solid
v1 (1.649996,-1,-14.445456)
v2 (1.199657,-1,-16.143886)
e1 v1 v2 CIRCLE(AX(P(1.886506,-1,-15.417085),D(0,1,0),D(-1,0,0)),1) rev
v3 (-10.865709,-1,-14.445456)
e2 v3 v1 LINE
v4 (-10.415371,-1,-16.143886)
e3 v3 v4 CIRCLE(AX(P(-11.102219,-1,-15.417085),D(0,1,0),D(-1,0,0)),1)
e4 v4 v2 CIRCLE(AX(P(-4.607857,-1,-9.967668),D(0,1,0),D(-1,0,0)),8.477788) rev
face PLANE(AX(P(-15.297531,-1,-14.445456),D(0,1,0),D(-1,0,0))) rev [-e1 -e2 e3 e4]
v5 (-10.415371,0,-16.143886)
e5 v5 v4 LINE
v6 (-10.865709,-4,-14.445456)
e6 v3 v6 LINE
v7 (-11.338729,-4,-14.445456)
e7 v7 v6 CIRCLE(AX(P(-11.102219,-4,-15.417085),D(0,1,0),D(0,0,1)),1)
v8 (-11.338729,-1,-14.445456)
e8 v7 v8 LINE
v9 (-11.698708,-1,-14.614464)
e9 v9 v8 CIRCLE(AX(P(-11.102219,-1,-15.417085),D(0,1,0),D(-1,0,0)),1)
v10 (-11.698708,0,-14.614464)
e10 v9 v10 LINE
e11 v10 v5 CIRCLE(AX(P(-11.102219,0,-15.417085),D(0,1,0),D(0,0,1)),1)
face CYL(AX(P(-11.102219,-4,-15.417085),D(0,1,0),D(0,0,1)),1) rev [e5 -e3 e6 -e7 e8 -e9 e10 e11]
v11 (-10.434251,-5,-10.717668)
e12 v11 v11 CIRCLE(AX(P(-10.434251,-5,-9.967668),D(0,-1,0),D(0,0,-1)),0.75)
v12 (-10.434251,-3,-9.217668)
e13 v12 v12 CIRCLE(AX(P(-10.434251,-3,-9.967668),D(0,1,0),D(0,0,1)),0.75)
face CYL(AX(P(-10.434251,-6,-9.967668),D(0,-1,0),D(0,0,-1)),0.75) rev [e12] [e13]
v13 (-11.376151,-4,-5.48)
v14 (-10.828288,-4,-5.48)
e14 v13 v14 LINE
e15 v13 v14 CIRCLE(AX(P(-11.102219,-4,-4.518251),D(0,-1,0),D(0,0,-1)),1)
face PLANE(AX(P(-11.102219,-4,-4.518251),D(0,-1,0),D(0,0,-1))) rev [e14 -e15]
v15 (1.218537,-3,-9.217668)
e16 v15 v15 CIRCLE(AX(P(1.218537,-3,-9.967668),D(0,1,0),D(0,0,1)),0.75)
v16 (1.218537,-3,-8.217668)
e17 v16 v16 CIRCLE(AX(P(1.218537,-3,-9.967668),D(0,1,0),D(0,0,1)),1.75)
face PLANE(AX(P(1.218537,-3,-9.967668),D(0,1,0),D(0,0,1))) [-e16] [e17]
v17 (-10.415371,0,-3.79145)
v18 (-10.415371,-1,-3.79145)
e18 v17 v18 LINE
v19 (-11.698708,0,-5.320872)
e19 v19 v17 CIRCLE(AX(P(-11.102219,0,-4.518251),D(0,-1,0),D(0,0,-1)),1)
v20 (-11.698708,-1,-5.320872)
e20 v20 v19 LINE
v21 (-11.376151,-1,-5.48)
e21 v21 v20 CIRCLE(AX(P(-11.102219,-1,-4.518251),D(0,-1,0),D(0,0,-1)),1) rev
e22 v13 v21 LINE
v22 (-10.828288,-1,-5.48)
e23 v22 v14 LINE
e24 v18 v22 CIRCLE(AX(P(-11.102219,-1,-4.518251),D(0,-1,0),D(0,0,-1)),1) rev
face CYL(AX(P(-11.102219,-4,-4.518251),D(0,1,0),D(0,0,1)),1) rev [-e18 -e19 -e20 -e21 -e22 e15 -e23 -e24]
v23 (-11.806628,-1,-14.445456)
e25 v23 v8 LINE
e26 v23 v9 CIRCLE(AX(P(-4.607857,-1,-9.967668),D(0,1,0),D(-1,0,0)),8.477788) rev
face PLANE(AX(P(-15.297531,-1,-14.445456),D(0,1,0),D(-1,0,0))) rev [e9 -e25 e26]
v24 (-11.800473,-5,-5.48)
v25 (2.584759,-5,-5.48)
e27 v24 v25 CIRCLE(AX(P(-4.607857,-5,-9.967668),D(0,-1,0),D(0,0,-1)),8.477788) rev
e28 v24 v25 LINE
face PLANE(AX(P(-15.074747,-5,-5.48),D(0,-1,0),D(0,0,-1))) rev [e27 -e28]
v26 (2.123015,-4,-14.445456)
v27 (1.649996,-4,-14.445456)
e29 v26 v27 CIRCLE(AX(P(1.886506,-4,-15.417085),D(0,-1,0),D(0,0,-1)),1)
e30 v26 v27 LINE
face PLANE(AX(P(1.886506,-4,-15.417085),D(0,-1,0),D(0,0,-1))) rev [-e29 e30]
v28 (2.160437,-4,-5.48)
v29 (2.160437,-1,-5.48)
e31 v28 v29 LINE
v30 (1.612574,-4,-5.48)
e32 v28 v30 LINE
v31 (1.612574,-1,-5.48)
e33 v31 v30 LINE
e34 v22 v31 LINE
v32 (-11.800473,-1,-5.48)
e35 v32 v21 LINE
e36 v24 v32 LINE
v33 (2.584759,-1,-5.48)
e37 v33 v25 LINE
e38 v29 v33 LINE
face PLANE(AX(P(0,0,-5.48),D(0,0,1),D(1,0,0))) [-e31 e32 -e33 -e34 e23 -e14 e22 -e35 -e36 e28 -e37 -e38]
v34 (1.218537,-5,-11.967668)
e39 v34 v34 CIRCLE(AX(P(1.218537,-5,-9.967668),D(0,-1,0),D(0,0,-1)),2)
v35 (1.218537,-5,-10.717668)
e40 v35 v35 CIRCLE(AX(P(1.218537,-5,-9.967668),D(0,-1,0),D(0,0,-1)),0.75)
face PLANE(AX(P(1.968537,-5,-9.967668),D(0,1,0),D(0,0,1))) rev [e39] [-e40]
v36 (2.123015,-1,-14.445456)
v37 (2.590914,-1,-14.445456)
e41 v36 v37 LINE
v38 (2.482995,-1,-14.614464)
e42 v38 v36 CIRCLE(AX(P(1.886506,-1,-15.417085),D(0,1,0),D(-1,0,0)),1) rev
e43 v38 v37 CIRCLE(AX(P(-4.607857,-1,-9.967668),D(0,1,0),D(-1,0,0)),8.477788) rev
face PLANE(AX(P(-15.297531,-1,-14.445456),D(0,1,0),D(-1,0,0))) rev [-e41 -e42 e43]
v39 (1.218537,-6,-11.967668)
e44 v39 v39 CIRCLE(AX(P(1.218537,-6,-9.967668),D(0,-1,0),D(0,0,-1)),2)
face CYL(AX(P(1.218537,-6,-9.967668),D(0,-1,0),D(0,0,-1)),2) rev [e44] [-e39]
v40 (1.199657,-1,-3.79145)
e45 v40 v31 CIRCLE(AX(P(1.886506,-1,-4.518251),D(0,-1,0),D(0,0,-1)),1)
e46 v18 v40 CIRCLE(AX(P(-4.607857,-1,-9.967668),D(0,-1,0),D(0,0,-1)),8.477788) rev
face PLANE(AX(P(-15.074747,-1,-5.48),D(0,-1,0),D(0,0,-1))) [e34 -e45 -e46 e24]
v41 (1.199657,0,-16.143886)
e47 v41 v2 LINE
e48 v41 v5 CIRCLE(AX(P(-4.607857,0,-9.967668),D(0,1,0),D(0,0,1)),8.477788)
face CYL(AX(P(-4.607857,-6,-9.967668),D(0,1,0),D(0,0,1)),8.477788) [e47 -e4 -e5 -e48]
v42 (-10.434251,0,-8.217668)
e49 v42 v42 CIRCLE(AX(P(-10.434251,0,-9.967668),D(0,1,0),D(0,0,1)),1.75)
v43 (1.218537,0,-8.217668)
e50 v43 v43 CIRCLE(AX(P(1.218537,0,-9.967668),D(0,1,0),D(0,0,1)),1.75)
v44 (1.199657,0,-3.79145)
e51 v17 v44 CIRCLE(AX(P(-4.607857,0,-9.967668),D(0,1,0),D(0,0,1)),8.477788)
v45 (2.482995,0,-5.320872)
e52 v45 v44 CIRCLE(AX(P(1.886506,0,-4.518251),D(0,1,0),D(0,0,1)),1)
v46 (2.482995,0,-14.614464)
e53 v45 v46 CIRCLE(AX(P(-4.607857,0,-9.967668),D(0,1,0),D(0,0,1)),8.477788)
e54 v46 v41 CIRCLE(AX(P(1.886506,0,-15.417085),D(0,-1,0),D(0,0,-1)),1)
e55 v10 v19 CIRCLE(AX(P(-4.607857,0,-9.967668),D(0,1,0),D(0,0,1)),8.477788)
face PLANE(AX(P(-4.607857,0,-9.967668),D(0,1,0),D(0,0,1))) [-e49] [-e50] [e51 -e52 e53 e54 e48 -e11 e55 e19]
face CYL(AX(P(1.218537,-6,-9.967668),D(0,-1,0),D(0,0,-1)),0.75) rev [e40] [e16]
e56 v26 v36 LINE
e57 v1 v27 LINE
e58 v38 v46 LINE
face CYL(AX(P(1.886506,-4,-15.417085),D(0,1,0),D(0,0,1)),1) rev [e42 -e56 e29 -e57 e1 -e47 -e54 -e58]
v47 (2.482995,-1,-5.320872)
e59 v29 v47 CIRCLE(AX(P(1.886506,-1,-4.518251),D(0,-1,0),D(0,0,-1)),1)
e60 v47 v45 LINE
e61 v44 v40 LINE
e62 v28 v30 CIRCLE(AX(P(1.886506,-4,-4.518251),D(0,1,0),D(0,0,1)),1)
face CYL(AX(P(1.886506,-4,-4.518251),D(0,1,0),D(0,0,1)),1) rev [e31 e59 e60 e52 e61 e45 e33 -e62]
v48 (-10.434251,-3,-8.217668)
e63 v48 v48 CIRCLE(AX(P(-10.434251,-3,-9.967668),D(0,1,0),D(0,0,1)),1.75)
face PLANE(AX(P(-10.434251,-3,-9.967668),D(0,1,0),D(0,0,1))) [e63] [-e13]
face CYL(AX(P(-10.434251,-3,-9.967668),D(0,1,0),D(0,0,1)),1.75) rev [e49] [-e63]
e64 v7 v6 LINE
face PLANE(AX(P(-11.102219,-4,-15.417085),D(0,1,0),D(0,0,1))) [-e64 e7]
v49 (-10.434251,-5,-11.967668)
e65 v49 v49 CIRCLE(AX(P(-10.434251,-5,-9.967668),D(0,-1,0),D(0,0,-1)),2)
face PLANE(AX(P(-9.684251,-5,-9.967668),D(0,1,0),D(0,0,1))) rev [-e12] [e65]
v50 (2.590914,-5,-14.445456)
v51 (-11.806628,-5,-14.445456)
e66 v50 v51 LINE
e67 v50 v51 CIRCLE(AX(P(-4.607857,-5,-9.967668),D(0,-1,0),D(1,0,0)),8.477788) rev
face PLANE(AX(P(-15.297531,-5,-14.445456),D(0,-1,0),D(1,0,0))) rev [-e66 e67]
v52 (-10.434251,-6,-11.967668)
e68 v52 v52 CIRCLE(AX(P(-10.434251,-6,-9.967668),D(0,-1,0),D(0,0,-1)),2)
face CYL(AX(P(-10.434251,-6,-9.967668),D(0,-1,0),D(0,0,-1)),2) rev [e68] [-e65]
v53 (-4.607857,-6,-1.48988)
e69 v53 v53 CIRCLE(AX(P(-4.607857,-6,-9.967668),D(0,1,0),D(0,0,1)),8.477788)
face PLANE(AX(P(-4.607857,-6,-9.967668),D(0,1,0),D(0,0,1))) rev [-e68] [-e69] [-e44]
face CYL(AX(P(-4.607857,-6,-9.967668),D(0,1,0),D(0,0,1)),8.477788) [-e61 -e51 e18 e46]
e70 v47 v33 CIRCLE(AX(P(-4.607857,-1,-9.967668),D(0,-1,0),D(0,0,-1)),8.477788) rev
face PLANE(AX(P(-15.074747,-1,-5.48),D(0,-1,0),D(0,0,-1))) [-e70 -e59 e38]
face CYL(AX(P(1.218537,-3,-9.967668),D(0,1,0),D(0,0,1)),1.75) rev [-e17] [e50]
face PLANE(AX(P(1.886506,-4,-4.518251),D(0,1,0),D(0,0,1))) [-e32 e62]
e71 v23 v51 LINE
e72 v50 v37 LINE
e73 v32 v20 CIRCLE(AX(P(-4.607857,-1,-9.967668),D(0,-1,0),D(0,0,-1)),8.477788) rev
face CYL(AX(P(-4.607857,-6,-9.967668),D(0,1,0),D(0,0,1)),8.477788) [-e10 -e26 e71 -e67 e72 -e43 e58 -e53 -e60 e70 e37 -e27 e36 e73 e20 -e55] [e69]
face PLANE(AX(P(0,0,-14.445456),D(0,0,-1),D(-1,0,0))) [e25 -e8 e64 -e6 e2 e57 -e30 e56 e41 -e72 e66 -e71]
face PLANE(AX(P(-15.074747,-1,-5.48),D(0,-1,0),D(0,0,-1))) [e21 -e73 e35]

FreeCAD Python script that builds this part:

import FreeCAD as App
import Part
import Sketcher
from FreeCAD import Vector


def add_polygon(sketch, points):
    """Adds a closed chain of lines whose ends are joined by coincident constraints."""
    first, n = sketch.GeometryCount, len(points)
    for a, b in zip(points, points[1:] + points[:1]):
        sketch.addGeometry(Part.LineSegment(App.Vector(*a, 0), App.Vector(*b, 0)), False)
    for i in range(n):
        sketch.addConstraint(Sketcher.Constraint("Coincident", first + i, 2, first + (i + 1) % n, 1))

doc = App.newDocument("Part")
params = doc.addObject("Spreadsheet::Sheet", "Params")
for row, (alias, value) in enumerate([
    ("pad1_length", "6 mm"),
    ("sketch2_diameter", "3.5 mm"),
    ("pocket1_length", "3 mm"),
    ("sketch3_diameter", "1.5 mm"),
    ("hole_diameter", "1.5 mm"),
    ("hole_cbore_diameter", "4 mm"),
    ("hole_cbore_depth", "1 mm"),
    ("sketch4_height", "4 mm"),
    ("pocket2_length", "4 mm"),
    ("sketch5_height", "4 mm"),
    ("pocket3_length", "4 mm"),
    ("sketch6_diameter", "2 mm"),
    ("pocket4_length", "4 mm"),
], start=1):
    params.set(f"A{row}", alias)
    params.set(f"B{row}", "=" + value)
    params.setAlias(f"B{row}", alias)

body = doc.addObject("PartDesign::Body", "Body")

# Sketch on XZ plane
sketch1 = body.newObject("Sketcher::SketchObject", "Sketch")
sketch1.AttachmentSupport = (doc.getObject("XZ_Plane"), [""])
sketch1.MapMode = "FlatFace"
sketch1.addGeometry(Part.Circle(Vector(-5, -10, 0), Vector(0, 0, 1), 8), False)
sketch1.addConstraint([
    Sketcher.Constraint("Diameter", 0, 16.955576),
    Sketcher.Constraint("DistanceX", 0, 3, -1, 1, 4.607857),
    Sketcher.Constraint("DistanceY", 0, 3, -1, 1, 9.967668),
])
pad1 = body.newObject("PartDesign::Pad", "Pad")
pad1.Profile = sketch1
pad1.setExpression("Length", "Params.pad1_length")

# Sketch on XZ plane
sketch2 = body.newObject("Sketcher::SketchObject", "Sketch001")
sketch2.AttachmentSupport = (doc.getObject("XZ_Plane"), [""])
sketch2.MapMode = "FlatFace"
sketch2.addGeometry([
    Part.Circle(Vector(-10.4, -10, 0), Vector(0, 0, 1), 1.8),
    Part.Circle(Vector(1.2, -10, 0), Vector(0, 0, 1), 1.8),
], False)
sketch2.addConstraint([
    Sketcher.Constraint("Equal", 0, 1),
    Sketcher.Constraint("Horizontal", 0, 3, 1, 3),
    Sketcher.Constraint("Diameter", 0, 3.5),
    Sketcher.Constraint("DistanceX", 0, 3, -1, 1, 10.434251),
    Sketcher.Constraint("DistanceY", 0, 3, -1, 1, 9.967668),
    Sketcher.Constraint("DistanceX", -1, 1, 1, 3, 1.218537),
])
sketch2.setExpression("Constraints[2]", "Params.sketch2_diameter")
pocket1 = body.newObject("PartDesign::Pocket", "Pocket")
pocket1.Profile = sketch2
pocket1.setExpression("Length", "Params.pocket1_length")
pocket1.Reversed = True

# Sketch on XZ plane
sketch3 = body.newObject("Sketcher::SketchObject", "Sketch002")
sketch3.AttachmentSupport = (doc.getObject("XZ_Plane"), [""])
sketch3.MapMode = "FlatFace"
sketch3.AttachmentOffset = App.Placement(Vector(0, 0, 6), App.Rotation())
sketch3.addGeometry([
    Part.Circle(Vector(-10.4, -10, 0), Vector(0, 0, 1), 0.8),
    Part.Circle(Vector(1.2, -10, 0), Vector(0, 0, 1), 0.8),
], False)
sketch3.addConstraint([
    Sketcher.Constraint("Equal", 0, 1),
    Sketcher.Constraint("Horizontal", 0, 3, 1, 3),
    Sketcher.Constraint("Diameter", 0, 1.5),
    Sketcher.Constraint("DistanceX", 0, 3, -1, 1, 10.434251),
    Sketcher.Constraint("DistanceY", 0, 3, -1, 1, 9.967668),
    Sketcher.Constraint("DistanceX", -1, 1, 1, 3, 1.218537),
])
sketch3.setExpression("Constraints[2]", "Params.sketch3_diameter")
doc.recompute()
hole = body.newObject("PartDesign::Hole", "Hole")
hole.Profile = sketch3
hole.ThreadType = "None"
hole.setExpression("Diameter", "Params.hole_diameter")
hole.DepthType = "ThroughAll"
hole.HoleCutType = "Counterbore"
hole.setExpression("HoleCutDiameter", "Params.hole_cbore_diameter")
hole.setExpression("HoleCutDepth", "Params.hole_cbore_depth")

# Sketch on XY plane
sketch4 = body.newObject("Sketcher::SketchObject", "Sketch003")
sketch4.AttachmentSupport = (doc.getObject("XY_Plane"), [""])
sketch4.MapMode = "FlatFace"
sketch4.AttachmentOffset = App.Placement(Vector(0, 0, -1.48), App.Rotation())
add_polygon(sketch4, [(-15.1, -1), (-15.1, -5), (6.4, -5), (6.4, -1)])  # lines 0-3
sketch4.addConstraint([
    Sketcher.Constraint("Vertical", 0),
    Sketcher.Constraint("Horizontal", 1),
    Sketcher.Constraint("Vertical", 2),
    Sketcher.Constraint("Horizontal", 3),
    Sketcher.Constraint("DistanceY", 0, 2, 0, 1, 4.0),
    Sketcher.Constraint("DistanceY", 0, 2, -1, 1, 5.0),
    Sketcher.Constraint("DistanceX", 1, 1, 1, 2, 21.45512),
    Sketcher.Constraint("DistanceX", 0, 2, -1, 1, 15.074747),
])
sketch4.setExpression("Constraints[8]", "Params.sketch4_height")
pocket2 = body.newObject("PartDesign::Pocket", "Pocket001")
pocket2.Profile = sketch4
pocket2.setExpression("Length", "Params.pocket2_length")

# Sketch on XY plane
sketch5 = body.newObject("Sketcher::SketchObject", "Sketch004")
sketch5.AttachmentSupport = (doc.getObject("XY_Plane"), [""])
sketch5.MapMode = "FlatFace"
sketch5.AttachmentOffset = App.Placement(Vector(0, 0, -18.445456), App.Rotation())
add_polygon(sketch5, [(7, -1), (7, -5), (-15.3, -5), (-15.3, -1)])  # lines 0-3
sketch5.addConstraint([
    Sketcher.Constraint("Vertical", 0),
    Sketcher.Constraint("Horizontal", 1),
    Sketcher.Constraint("Vertical", 2),
    Sketcher.Constraint("Horizontal", 3),
    Sketcher.Constraint("DistanceY", 0, 2, 0, 1, 4.0),
    Sketcher.Constraint("DistanceY", 0, 2, -1, 1, 5.0),
    Sketcher.Constraint("DistanceX", 1, 2, 1, 1, 22.336955),
    Sketcher.Constraint("DistanceX", 1, 2, -1, 1, 15.297531),
])
sketch5.setExpression("Constraints[8]", "Params.sketch5_height")
pocket3 = body.newObject("PartDesign::Pocket", "Pocket002")
pocket3.Profile = sketch5
pocket3.setExpression("Length", "Params.pocket3_length")
pocket3.Reversed = True

# Sketch on XZ plane
sketch6 = body.newObject("Sketcher::SketchObject", "Sketch005")
sketch6.AttachmentSupport = (doc.getObject("XZ_Plane"), [""])
sketch6.MapMode = "FlatFace"
sketch6.addGeometry([
    Part.Circle(Vector(1.9, -4.5, 0), Vector(0, 0, 1), 1),
    Part.Circle(Vector(-11.1, -4.5, 0), Vector(0, 0, 1), 1),
    Part.Circle(Vector(-11.1, -15.4, 0), Vector(0, 0, 1), 1),
    Part.Circle(Vector(1.9, -15.4, 0), Vector(0, 0, 1), 1),
], False)
sketch6.addConstraint([
    Sketcher.Constraint("Equal", 0, 1),
    Sketcher.Constraint("Equal", 1, 2),
    Sketcher.Constraint("Equal", 2, 3),
    Sketcher.Constraint("Horizontal", 0, 3, 1, 3),
    Sketcher.Constraint("Horizontal", 2, 3, 3, 3),
    Sketcher.Constraint("Vertical", 1, 3, 2, 3),
    Sketcher.Constraint("Vertical", 0, 3, 3, 3),
    Sketcher.Constraint("Diameter", 0, 2.0),
    Sketcher.Constraint("DistanceY", 0, 3, -1, 1, 4.518251),
    Sketcher.Constraint("DistanceX", 1, 3, -1, 1, 11.102219),
    Sketcher.Constraint("DistanceX", -1, 1, 0, 3, 1.886506),
    Sketcher.Constraint("DistanceY", 2, 3, -1, 1, 15.417085),
])
sketch6.setExpression("Constraints[7]", "Params.sketch6_diameter")
pocket4 = body.newObject("PartDesign::Pocket", "Pocket003")
pocket4.Profile = sketch6
pocket4.setExpression("Length", "Params.pocket4_length")
pocket4.Reversed = True

doc.recompute()
